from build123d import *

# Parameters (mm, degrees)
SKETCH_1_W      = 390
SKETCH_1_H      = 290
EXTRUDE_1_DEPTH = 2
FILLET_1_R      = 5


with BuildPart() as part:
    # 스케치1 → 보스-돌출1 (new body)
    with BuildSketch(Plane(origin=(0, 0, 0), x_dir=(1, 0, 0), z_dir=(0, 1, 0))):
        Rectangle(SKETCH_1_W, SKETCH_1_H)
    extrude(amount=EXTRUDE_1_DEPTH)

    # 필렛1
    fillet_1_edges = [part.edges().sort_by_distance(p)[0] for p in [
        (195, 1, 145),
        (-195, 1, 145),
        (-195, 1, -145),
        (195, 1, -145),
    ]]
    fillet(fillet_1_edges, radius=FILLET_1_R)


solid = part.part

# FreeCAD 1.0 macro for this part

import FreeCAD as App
import Part
import Sketcher


def edges_at(feature, points):
    """Names of the edges that pass closest to the given points."""
    edges = feature.Shape.Edges
    near = lambda p: min(range(len(edges)), key=lambda i: edges[i].distToShape(Part.Vertex(*p))[0])
    return sorted({f"Edge{near(p) + 1}" for p in points})

doc = App.newDocument("Part")
body = doc.addObject("PartDesign::Body", "Body")

# Sketch on XZ plane
sketch1 = body.newObject("Sketcher::SketchObject", "Sketch")
sketch1.AttachmentSupport = (doc.getObject("XZ_Plane"), [""])
sketch1.MapMode = "FlatFace"
sketch1.addGeometry(Part.LineSegment(App.Vector(-195, -145, 0), App.Vector(-195, 145, 0)), False)
sketch1.addGeometry(Part.LineSegment(App.Vector(-195, 145, 0), App.Vector(195, 145, 0)), False)
sketch1.addGeometry(Part.LineSegment(App.Vector(195, 145, 0), App.Vector(195, -145, 0)), False)
sketch1.addGeometry(Part.LineSegment(App.Vector(195, -145, 0), App.Vector(-195, -145, 0)), False)
sketch1.addConstraint(Sketcher.Constraint("Coincident", 0, 2, 1, 1))
sketch1.addConstraint(Sketcher.Constraint("Coincident", 1, 2, 2, 1))
sketch1.addConstraint(Sketcher.Constraint("Coincident", 2, 2, 3, 1))
sketch1.addConstraint(Sketcher.Constraint("Coincident", 3, 2, 0, 1))
sketch1.addConstraint(Sketcher.Constraint("Vertical", 0))
sketch1.addConstraint(Sketcher.Constraint("Horizontal", 1))
sketch1.addConstraint(Sketcher.Constraint("Vertical", 2))
sketch1.addConstraint(Sketcher.Constraint("Horizontal", 3))
sketch1.addConstraint(Sketcher.Constraint("Symmetric", 0, 2, 2, 2, -1, 1))
sketch1.addConstraint(Sketcher.Constraint("DistanceX", 1, 1, 1, 2, 390.0))
sketch1.addConstraint(Sketcher.Constraint("DistanceY", 0, 1, 0, 2, 290.0))
pad1 = body.newObject("PartDesign::Pad", "Pad")
pad1.Profile = sketch1
pad1.Length = 2
pad1.Reversed = True
doc.recompute()

fillet = body.newObject("PartDesign::Fillet", "Fillet")
fillet.Base = (pad1, edges_at(pad1, [
    (195, 1, 145),
    (-195, 1, 145),
    (-195, 1, -145),
    (195, 1, -145),
]))
fillet.Radius = 5

doc.recompute()
